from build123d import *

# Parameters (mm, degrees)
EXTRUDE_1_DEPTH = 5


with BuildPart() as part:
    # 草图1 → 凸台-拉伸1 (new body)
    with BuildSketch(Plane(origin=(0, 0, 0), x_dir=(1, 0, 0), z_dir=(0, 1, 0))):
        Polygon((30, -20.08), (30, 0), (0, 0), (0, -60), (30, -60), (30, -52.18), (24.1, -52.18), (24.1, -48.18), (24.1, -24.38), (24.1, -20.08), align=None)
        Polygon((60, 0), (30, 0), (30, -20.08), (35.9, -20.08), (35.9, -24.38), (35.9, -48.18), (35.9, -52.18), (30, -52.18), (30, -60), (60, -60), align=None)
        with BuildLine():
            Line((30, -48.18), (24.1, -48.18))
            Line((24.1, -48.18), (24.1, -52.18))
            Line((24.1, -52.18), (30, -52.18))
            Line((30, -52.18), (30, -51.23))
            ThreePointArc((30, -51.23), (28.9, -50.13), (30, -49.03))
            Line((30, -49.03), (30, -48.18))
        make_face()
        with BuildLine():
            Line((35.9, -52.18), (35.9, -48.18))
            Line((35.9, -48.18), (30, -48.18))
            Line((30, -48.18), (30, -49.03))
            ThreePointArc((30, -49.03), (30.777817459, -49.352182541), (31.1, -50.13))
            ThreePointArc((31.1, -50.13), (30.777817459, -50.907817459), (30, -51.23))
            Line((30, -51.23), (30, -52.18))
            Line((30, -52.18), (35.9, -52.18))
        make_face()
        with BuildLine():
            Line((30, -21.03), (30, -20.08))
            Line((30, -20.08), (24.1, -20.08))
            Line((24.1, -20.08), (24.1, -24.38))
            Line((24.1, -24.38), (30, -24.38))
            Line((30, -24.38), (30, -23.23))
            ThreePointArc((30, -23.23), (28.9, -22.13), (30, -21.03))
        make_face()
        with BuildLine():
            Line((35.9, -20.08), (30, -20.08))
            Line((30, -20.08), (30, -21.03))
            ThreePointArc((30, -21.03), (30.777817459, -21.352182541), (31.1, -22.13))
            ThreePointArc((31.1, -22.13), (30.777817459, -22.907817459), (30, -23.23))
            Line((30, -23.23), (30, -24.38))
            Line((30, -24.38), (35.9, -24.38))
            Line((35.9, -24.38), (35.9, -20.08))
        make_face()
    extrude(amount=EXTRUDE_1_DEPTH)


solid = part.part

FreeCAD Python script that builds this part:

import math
import FreeCAD as App
import Part
import Sketcher
from FreeCAD import Vector

doc = App.newDocument("Part")
body = doc.addObject("PartDesign::Body", "Body")

# Sketch on XZ plane
sketch1 = doc.addObject("Sketcher::SketchObject", "Sketch")
body.addObject(sketch1)
sketch1.AttachmentSupport = (doc.XZ_Plane, [""])
sketch1.MapMode = "FlatFace"
sketch1.addGeometry([
    Part.LineSegment(Vector(0, 0, 0), Vector(0, 60, 0)),  # 0
    Part.LineSegment(Vector(0, 60, 0), Vector(60, 60, 0)),  # 1
    Part.LineSegment(Vector(60, 60, 0), Vector(60, 0, 0)),  # 2
    Part.LineSegment(Vector(60, 0, 0), Vector(0, 0, 0)),  # 3
    Part.LineSegment(Vector(24.1, 48.2, 0), Vector(24.1, 24.4, 0)),  # 4
    Part.LineSegment(Vector(24.1, 24.4, 0), Vector(35.9, 24.4, 0)),  # 5
    Part.LineSegment(Vector(35.9, 24.4, 0), Vector(35.9, 48.2, 0)),  # 6
    Part.LineSegment(Vector(35.9, 48.2, 0), Vector(24.1, 48.2, 0)),  # 7
    Part.ArcOfCircle(Part.Circle(Vector(30, 22.1, 0), Vector(0, 0, 1), 1.1), math.radians(90), math.radians(270)),  # 8
    Part.ArcOfCircle(Part.Circle(Vector(30, 22.1, 0), Vector(0, 0, 1), 1.1), math.radians(-90), math.radians(0)),  # 9
    Part.ArcOfCircle(Part.Circle(Vector(30, 22.1, 0), Vector(0, 0, 1), 1.1), math.radians(0), math.radians(90)),  # 10
    Part.ArcOfCircle(Part.Circle(Vector(30, 50.1, 0), Vector(0, 0, 1), 1.1), math.radians(90), math.radians(270)),  # 11
    Part.ArcOfCircle(Part.Circle(Vector(30, 50.1, 0), Vector(0, 0, 1), 1.1), math.radians(-90), math.radians(0)),  # 12
    Part.ArcOfCircle(Part.Circle(Vector(30, 50.1, 0), Vector(0, 0, 1), 1.1), math.radians(0), math.radians(90)),  # 13
], False)
sketch1.addConstraint([
    Sketcher.Constraint("Coincident", 0, 2, 1, 1),
    Sketcher.Constraint("Coincident", 1, 2, 2, 1),
    Sketcher.Constraint("Coincident", 2, 2, 3, 1),
    Sketcher.Constraint("Coincident", 3, 2, 0, 1),
    Sketcher.Constraint("Coincident", 4, 2, 5, 1),
    Sketcher.Constraint("Coincident", 5, 2, 6, 1),
    Sketcher.Constraint("Coincident", 6, 2, 7, 1),
    Sketcher.Constraint("Coincident", 7, 2, 4, 1),
    Sketcher.Constraint("Tangent", 8, 2, 9, 1),
    Sketcher.Constraint("Tangent", 9, 2, 10, 1),
    Sketcher.Constraint("Tangent", 10, 2, 8, 1),
    Sketcher.Constraint("Tangent", 11, 2, 12, 1),
    Sketcher.Constraint("Tangent", 12, 2, 13, 1),
    Sketcher.Constraint("Tangent", 13, 2, 11, 1),
    Sketcher.Constraint("Vertical", 0),
    Sketcher.Constraint("Horizontal", 1),
    Sketcher.Constraint("Vertical", 2),
    Sketcher.Constraint("Horizontal", 3),
    Sketcher.Constraint("Vertical", 4),
    Sketcher.Constraint("Horizontal", 5),
    Sketcher.Constraint("Vertical", 6),
    Sketcher.Constraint("Horizontal", 7),
    Sketcher.Constraint("Coincident", 3, 2, -1, 1),
    Sketcher.Constraint("Equal", 10, 11),
    Sketcher.Constraint("Horizontal", 10, 3, 9, 2),
    Sketcher.Constraint("Horizontal", 13, 3, 12, 2),
    Sketcher.Constraint("Vertical", 10, 3, 11, 3),
    Sketcher.Constraint("Vertical", 13, 3, 8, 2),
    Sketcher.Constraint("Vertical", 8, 2, 10, 2),
    Sketcher.Constraint("Vertical", 10, 2, 11, 2),
    Sketcher.Constraint("Vertical", 11, 2, 13, 2),
    Sketcher.Constraint("Equal", 3, 0),
    Sketcher.Constraint("Radius", 8, 1.1),
    Sketcher.Constraint("DistanceX", 1, 1, 1, 2, 60.0),
    Sketcher.Constraint("DistanceX", 5, 1, 5, 2, 11.8),
    Sketcher.Constraint("DistanceY", 4, 2, 4, 1, 23.8),
    Sketcher.Constraint("DistanceX", -1, 1, 8, 3, 30.0),
    Sketcher.Constraint("DistanceY", 9, 3, 11, 3, 28.0),
    Sketcher.Constraint("DistanceX", -1, 1, 4, 2, 24.1),
    Sketcher.Constraint("DistanceY", -1, 1, 8, 3, 22.13),
    Sketcher.Constraint("DistanceY", -1, 1, 4, 2, 24.38),
])
pad1 = doc.addObject("PartDesign::Pad", "Pad")
body.addObject(pad1)
pad1.Profile = sketch1
pad1.Length = 5
pad1.Reversed = True

doc.recompute()
